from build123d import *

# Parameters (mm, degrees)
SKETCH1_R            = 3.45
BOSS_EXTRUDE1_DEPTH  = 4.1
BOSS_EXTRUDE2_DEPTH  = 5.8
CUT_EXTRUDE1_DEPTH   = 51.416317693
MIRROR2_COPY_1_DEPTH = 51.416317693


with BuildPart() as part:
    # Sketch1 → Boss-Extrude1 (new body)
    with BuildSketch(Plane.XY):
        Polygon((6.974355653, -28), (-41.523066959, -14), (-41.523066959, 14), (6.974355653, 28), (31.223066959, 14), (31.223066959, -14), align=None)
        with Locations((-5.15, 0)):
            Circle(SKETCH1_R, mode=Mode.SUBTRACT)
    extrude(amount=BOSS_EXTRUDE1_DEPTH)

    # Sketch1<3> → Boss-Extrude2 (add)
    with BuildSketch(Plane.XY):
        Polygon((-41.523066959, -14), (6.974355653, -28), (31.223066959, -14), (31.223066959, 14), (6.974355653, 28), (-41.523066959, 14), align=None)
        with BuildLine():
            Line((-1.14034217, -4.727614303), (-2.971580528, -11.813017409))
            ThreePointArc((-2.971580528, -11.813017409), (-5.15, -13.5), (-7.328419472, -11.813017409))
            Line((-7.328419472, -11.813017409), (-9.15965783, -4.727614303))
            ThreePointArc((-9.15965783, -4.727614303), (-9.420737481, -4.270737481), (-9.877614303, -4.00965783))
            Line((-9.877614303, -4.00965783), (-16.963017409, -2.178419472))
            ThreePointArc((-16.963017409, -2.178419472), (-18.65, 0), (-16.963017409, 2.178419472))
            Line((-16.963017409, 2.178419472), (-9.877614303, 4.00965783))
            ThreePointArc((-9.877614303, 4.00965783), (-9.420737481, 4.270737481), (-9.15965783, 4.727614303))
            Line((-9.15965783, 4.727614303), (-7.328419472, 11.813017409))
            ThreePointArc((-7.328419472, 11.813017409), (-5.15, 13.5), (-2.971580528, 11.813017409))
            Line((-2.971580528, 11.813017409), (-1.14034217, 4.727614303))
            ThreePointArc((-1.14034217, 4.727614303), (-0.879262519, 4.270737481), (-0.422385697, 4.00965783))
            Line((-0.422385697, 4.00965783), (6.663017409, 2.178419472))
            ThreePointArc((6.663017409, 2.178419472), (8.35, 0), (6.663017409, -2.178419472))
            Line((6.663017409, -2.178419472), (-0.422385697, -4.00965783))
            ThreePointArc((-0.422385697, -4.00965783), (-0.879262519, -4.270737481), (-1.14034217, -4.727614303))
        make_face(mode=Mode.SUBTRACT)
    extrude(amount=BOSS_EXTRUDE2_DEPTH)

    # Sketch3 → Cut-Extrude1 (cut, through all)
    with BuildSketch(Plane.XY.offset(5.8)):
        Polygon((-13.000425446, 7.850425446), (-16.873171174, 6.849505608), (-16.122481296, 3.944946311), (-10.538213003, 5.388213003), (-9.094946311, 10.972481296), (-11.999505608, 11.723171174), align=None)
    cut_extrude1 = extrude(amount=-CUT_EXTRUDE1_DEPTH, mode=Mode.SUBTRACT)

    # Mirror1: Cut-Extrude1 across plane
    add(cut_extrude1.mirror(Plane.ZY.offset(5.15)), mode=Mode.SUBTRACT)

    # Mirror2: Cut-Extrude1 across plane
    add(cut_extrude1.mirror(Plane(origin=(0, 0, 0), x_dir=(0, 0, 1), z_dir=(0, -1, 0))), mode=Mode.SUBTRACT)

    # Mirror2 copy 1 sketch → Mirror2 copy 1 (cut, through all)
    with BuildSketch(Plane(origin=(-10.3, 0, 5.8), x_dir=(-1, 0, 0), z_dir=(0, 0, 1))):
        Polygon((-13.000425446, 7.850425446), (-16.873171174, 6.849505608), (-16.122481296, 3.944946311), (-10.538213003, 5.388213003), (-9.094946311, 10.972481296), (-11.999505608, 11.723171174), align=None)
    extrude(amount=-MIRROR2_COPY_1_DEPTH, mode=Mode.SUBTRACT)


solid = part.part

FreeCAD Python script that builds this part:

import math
import FreeCAD as App
import Part
import Sketcher
from FreeCAD import Vector
Q = App.Units.Quantity

doc = App.newDocument("Part")
body = doc.addObject("PartDesign::Body", "Body")

sketch1 = doc.addObject("Sketcher::SketchObject", "Sketch")
body.addObject(sketch1)
sketch1.AttachmentSupport = (doc.XY_Plane, [""])
sketch1.MapMode = "FlatFace"
sketch1.addGeometry(Part.LineSegment(Vector(-41.5, -14, 0), Vector(7, -28, 0)), False)
sketch1.addGeometry(Part.LineSegment(Vector(7, -28, 0), Vector(31.2, -14, 0)), False)
sketch1.addGeometry(Part.LineSegment(Vector(31.2, -14, 0), Vector(31.2, 14, 0)), False)
sketch1.addGeometry(Part.LineSegment(Vector(31.2, 14, 0), Vector(7, 28, 0)), False)
sketch1.addGeometry(Part.LineSegment(Vector(7, 28, 0), Vector(-41.5, 14, 0)), False)
sketch1.addGeometry(Part.LineSegment(Vector(-41.5, 14, 0), Vector(-41.5, -14, 0)), False)
sketch1.addGeometry(Part.Circle(Vector(-5.2, 0, 0), Vector(0, 0, 1), 3.5), False)
sketch1.addConstraint(Sketcher.Constraint("Coincident", 0, 2, 1, 1))
sketch1.addConstraint(Sketcher.Constraint("Coincident", 1, 2, 2, 1))
sketch1.addConstraint(Sketcher.Constraint("Coincident", 2, 2, 3, 1))
sketch1.addConstraint(Sketcher.Constraint("Coincident", 3, 2, 4, 1))
sketch1.addConstraint(Sketcher.Constraint("Coincident", 4, 2, 5, 1))
sketch1.addConstraint(Sketcher.Constraint("Coincident", 5, 2, 0, 1))
sketch1.addConstraint(Sketcher.Constraint("Vertical", 2))
sketch1.addConstraint(Sketcher.Constraint("Vertical", 5))
sketch1.addConstraint(Sketcher.Constraint("Symmetric", 0, 2, 3, 2, -1))
sketch1.addConstraint(Sketcher.Constraint("PointOnObject", 6, 3, -1))
sketch1.addConstraint(Sketcher.Constraint("Horizontal", 2, 2, 4, 2))
sketch1.addConstraint(Sketcher.Constraint("Horizontal", 1, 2, 5, 2))
sketch1.addConstraint(Sketcher.Constraint("Equal", 1, 3))
sketch1.addConstraint(Sketcher.Constraint("Diameter", 6, Q("6.9 mm")))
sketch1.addConstraint(Sketcher.Constraint("DistanceY", 2, 1, 2, 2, Q("28 mm")))
sketch1.addConstraint(Sketcher.Constraint("Angle", 1, Q("30 deg")))
sketch1.addConstraint(Sketcher.Constraint("Distance", 1, Q("28 mm")))
sketch1.addConstraint(Sketcher.Constraint("DistanceX", 6, 3, -1, 1, Q("5.15 mm")))
sketch1.addConstraint(Sketcher.Constraint("Distance", 0, Q("50.477718 mm")))
sketch1.addConstraint(Sketcher.Constraint("DistanceX", -1, 1, 0, 2, Q("6.974356 mm")))
pad1 = doc.addObject("PartDesign::Pad", "Pad")
body.addObject(pad1)
pad1.Profile = sketch1
pad1.Length = 4.1

sketch2 = doc.addObject("Sketcher::SketchObject", "Sketch001")
body.addObject(sketch2)
sketch2.AttachmentSupport = (doc.XY_Plane, [""])
sketch2.MapMode = "FlatFace"
sketch2.addGeometry(Part.LineSegment(Vector(-41.5, -14, 0), Vector(7, -28, 0)), False)
sketch2.addGeometry(Part.LineSegment(Vector(7, -28, 0), Vector(31.2, -14, 0)), False)
sketch2.addGeometry(Part.LineSegment(Vector(31.2, -14, 0), Vector(31.2, 14, 0)), False)
sketch2.addGeometry(Part.LineSegment(Vector(31.2, 14, 0), Vector(7, 28, 0)), False)
sketch2.addGeometry(Part.LineSegment(Vector(7, 28, 0), Vector(-41.5, 14, 0)), False)
sketch2.addGeometry(Part.LineSegment(Vector(-41.5, 14, 0), Vector(-41.5, -14, 0)), False)
sketch2.addGeometry(Part.ArcOfCircle(Part.Circle(Vector(-0.2, -5, 0), Vector(0, 0, 1), 1), math.radians(104), math.radians(166)), False)
sketch2.addGeometry(Part.LineSegment(Vector(-1.1, -4.7, 0), Vector(-3, -11.8, 0)), False)
sketch2.addGeometry(Part.ArcOfCircle(Part.Circle(Vector(-5.2, -11.2, 0), Vector(0, 0, 1), 2.2), math.radians(-166), math.radians(-14)), False)
sketch2.addGeometry(Part.LineSegment(Vector(-7.3, -11.8, 0), Vector(-9.2, -4.7, 0)), False)
sketch2.addGeometry(Part.ArcOfCircle(Part.Circle(Vector(-10.1, -5, 0), Vector(0, 0, 1), 1), math.radians(14), math.radians(76)), False)
sketch2.addGeometry(Part.LineSegment(Vector(-9.9, -4, 0), Vector(-17, -2.2, 0)), False)
sketch2.addGeometry(Part.ArcOfCircle(Part.Circle(Vector(-16.4, 0, 0), Vector(0, 0, 1), 2.2), math.radians(104), math.radians(256)), False)
sketch2.addGeometry(Part.LineSegment(Vector(-17, 2.2, 0), Vector(-9.9, 4, 0)), False)
sketch2.addGeometry(Part.ArcOfCircle(Part.Circle(Vector(-10.1, 5, 0), Vector(0, 0, 1), 1), math.radians(-76), math.radians(-14)), False)
sketch2.addGeometry(Part.LineSegment(Vector(-9.2, 4.7, 0), Vector(-7.3, 11.8, 0)), False)
sketch2.addGeometry(Part.ArcOfCircle(Part.Circle(Vector(-5.2, 11.2, 0), Vector(0, 0, 1), 2.2), math.radians(14), math.radians(166)), False)
sketch2.addGeometry(Part.LineSegment(Vector(-3, 11.8, 0), Vector(-1.1, 4.7, 0)), False)
sketch2.addGeometry(Part.ArcOfCircle(Part.Circle(Vector(-0.2, 5, 0), Vector(0, 0, 1), 1), math.radians(-166), math.radians(-104)), False)
sketch2.addGeometry(Part.LineSegment(Vector(-0.4, 4, 0), Vector(6.7, 2.2, 0)), False)
sketch2.addGeometry(Part.ArcOfCircle(Part.Circle(Vector(6.1, 0, 0), Vector(0, 0, 1), 2.2), math.radians(-76), math.radians(76)), False)
sketch2.addGeometry(Part.LineSegment(Vector(6.7, -2.2, 0), Vector(-0.4, -4, 0)), False)
sketch2.addConstraint(Sketcher.Constraint("Coincident", 0, 2, 1, 1))
sketch2.addConstraint(Sketcher.Constraint("Coincident", 1, 2, 2, 1))
sketch2.addConstraint(Sketcher.Constraint("Coincident", 2, 2, 3, 1))
sketch2.addConstraint(Sketcher.Constraint("Coincident", 3, 2, 4, 1))
sketch2.addConstraint(Sketcher.Constraint("Coincident", 4, 2, 5, 1))
sketch2.addConstraint(Sketcher.Constraint("Coincident", 5, 2, 0, 1))
sketch2.addConstraint(Sketcher.Constraint("Tangent", 6, 2, 7, 1))
sketch2.addConstraint(Sketcher.Constraint("Tangent", 7, 2, 8, 2))
sketch2.addConstraint(Sketcher.Constraint("Tangent", 8, 1, 9, 1))
sketch2.addConstraint(Sketcher.Constraint("Tangent", 9, 2, 10, 1))
sketch2.addConstraint(Sketcher.Constraint("Tangent", 10, 2, 11, 1))
sketch2.addConstraint(Sketcher.Constraint("Tangent", 11, 2, 12, 2))
sketch2.addConstraint(Sketcher.Constraint("Tangent", 12, 1, 13, 1))
sketch2.addConstraint(Sketcher.Constraint("Tangent", 13, 2, 14, 1))
sketch2.addConstraint(Sketcher.Constraint("Tangent", 14, 2, 15, 1))
sketch2.addConstraint(Sketcher.Constraint("Tangent", 15, 2, 16, 2))
sketch2.addConstraint(Sketcher.Constraint("Tangent", 16, 1, 17, 1))
sketch2.addConstraint(Sketcher.Constraint("Tangent", 17, 2, 18, 1))
sketch2.addConstraint(Sketcher.Constraint("Tangent", 18, 2, 19, 1))
sketch2.addConstraint(Sketcher.Constraint("Tangent", 19, 2, 20, 2))
sketch2.addConstraint(Sketcher.Constraint("Tangent", 20, 1, 21, 1))
sketch2.addConstraint(Sketcher.Constraint("Tangent", 21, 2, 6, 1))
sketch2.addConstraint(Sketcher.Constraint("Vertical", 2))
sketch2.addConstraint(Sketcher.Constraint("Vertical", 5))
sketch2.addConstraint(Sketcher.Constraint("Equal", 6, 10))
sketch2.addConstraint(Sketcher.Constraint("Equal", 8, 12))
sketch2.addConstraint(Sketcher.Constraint("Equal", 10, 14))
sketch2.addConstraint(Sketcher.Constraint("Equal", 12, 16))
sketch2.addConstraint(Sketcher.Constraint("Equal", 14, 18))
sketch2.addConstraint(Sketcher.Constraint("Equal", 16, 20))
sketch2.addConstraint(Sketcher.Constraint("Symmetric", 10, 3, 14, 3, -1))
sketch2.addConstraint(Sketcher.Constraint("Symmetric", 8, 3, 16, 3, -1))
sketch2.addConstraint(Sketcher.Constraint("Symmetric", 6, 3, 18, 3, -1))
sketch2.addConstraint(Sketcher.Constraint("Symmetric", 0, 2, 3, 2, -1))
sketch2.addConstraint(Sketcher.Constraint("PointOnObject", 12, 3, -1))
sketch2.addConstraint(Sketcher.Constraint("PointOnObject", 20, 3, -1))
sketch2.addConstraint(Sketcher.Constraint("Perpendicular", 7, 11))
sketch2.addConstraint(Sketcher.Constraint("Perpendicular", 9, 13))
sketch2.addConstraint(Sketcher.Constraint("Perpendicular", 15, 19))
sketch2.addConstraint(Sketcher.Constraint("Horizontal", 6, 3, 10, 3))
sketch2.addConstraint(Sketcher.Constraint("Horizontal", 2, 2, 4, 2))
sketch2.addConstraint(Sketcher.Constraint("Horizontal", 1, 2, 5, 2))
sketch2.addConstraint(Sketcher.Constraint("Equal", 1, 3))
sketch2.addConstraint(Sketcher.Constraint("Equal", 9, 11))
sketch2.addConstraint(Sketcher.Constraint("Radius", 6, Q("1 mm")))
sketch2.addConstraint(Sketcher.Constraint("DistanceY", 2, 1, 2, 2, Q("28 mm")))
sketch2.addConstraint(Sketcher.Constraint("Angle", 1, Q("30 deg")))
sketch2.addConstraint(Sketcher.Constraint("Radius", 8, Q("2.25 mm")))
sketch2.addConstraint(Sketcher.Constraint("Distance", 1, Q("28 mm")))
sketch2.addConstraint(Sketcher.Constraint("DistanceX", 12, 3, -1, 1, Q("16.4 mm")))
sketch2.addConstraint(Sketcher.Constraint("DistanceX", -1, 1, 20, 3, Q("6.1 mm")))
sketch2.addConstraint(Sketcher.Constraint("DistanceX", 10, 3, 0, 2, Q("17.1022 mm")))
sketch2.addConstraint(Sketcher.Constraint("Distance", 7, Q("7.318222 mm")))
sketch2.addConstraint(Sketcher.Constraint("DistanceX", 4, 2, 18, 3, Q("41.350911 mm")))
pad2 = doc.addObject("PartDesign::Pad", "Pad001")
body.addObject(pad2)
pad2.Profile = sketch2
pad2.Length = 5.8

sketch3 = doc.addObject("Sketcher::SketchObject", "Sketch002")
body.addObject(sketch3)
sketch3.AttachmentSupport = (doc.XY_Plane, [""])
sketch3.MapMode = "FlatFace"
sketch3.AttachmentOffset = App.Placement(Vector(0, 0, 5.8), App.Rotation())
sketch3.addGeometry(Part.LineSegment(Vector(-13, 7.9, 0), Vector(-16.9, 6.8, 0)), False)
sketch3.addGeometry(Part.LineSegment(Vector(-16.9, 6.8, 0), Vector(-16.1, 3.9, 0)), False)
sketch3.addGeometry(Part.LineSegment(Vector(-16.1, 3.9, 0), Vector(-10.5, 5.4, 0)), False)
sketch3.addGeometry(Part.LineSegment(Vector(-10.5, 5.4, 0), Vector(-9.1, 11, 0)), False)
sketch3.addGeometry(Part.LineSegment(Vector(-9.1, 11, 0), Vector(-12, 11.7, 0)), False)
sketch3.addGeometry(Part.LineSegment(Vector(-12, 11.7, 0), Vector(-13, 7.9, 0)), False)
sketch3.addConstraint(Sketcher.Constraint("Coincident", 0, 2, 1, 1))
sketch3.addConstraint(Sketcher.Constraint("Coincident", 1, 2, 2, 1))
sketch3.addConstraint(Sketcher.Constraint("Coincident", 2, 2, 3, 1))
sketch3.addConstraint(Sketcher.Constraint("Coincident", 3, 2, 4, 1))
sketch3.addConstraint(Sketcher.Constraint("Coincident", 4, 2, 5, 1))
sketch3.addConstraint(Sketcher.Constraint("Coincident", 5, 2, 0, 1))
sketch3.addConstraint(Sketcher.Constraint("Perpendicular", 0, 1))
sketch3.addConstraint(Sketcher.Constraint("Perpendicular", 1, 2))
sketch3.addConstraint(Sketcher.Constraint("Perpendicular", 3, 4))
sketch3.addConstraint(Sketcher.Constraint("Perpendicular", 4, 5))
sketch3.addConstraint(Sketcher.Constraint("Equal", 2, 3))
sketch3.addConstraint(Sketcher.Constraint("Equal", 1, 4))
sketch3.addConstraint(Sketcher.Constraint("Distance", 0, Q("4 mm")))
sketch3.addConstraint(Sketcher.Constraint("Distance", 1, Q("3 mm")))
sketch3.addConstraint(Sketcher.Constraint("Distance", 2, Q("5.767761 mm")))
sketch3.addConstraint(Sketcher.Constraint("DistanceX", 0, 2, -1, 1, Q("16.873171 mm")))
sketch3.addConstraint(Sketcher.Constraint("DistanceX", 1, 2, -1, 1, Q("16.122481 mm")))
sketch3.addConstraint(Sketcher.Constraint("DistanceY", -1, 1, 3, 2, Q("10.972481 mm")))
pocket1 = doc.addObject("PartDesign::Pocket", "Pocket")
body.addObject(pocket1)
pocket1.Profile = sketch3
pocket1.Type = "ThroughAll"
doc.recompute()

datumplane = doc.addObject("PartDesign::Plane", "DatumPlane")
body.addObject(datumplane)
datumplane.AttachmentSupport = (doc.YZ_Plane, [""])
datumplane.MapMode = "FlatFace"
datumplane.AttachmentOffset = App.Placement(Vector(0, 0, -5.15), App.Rotation())
mirrored = doc.addObject("PartDesign::Mirrored", "Mirrored")
body.addObject(mirrored)
mirrored.Originals = [pocket1]
mirrored.MirrorPlane = (datumplane, [""])
body.Tip = mirrored
doc.recompute()

mirrored2 = doc.addObject("PartDesign::Mirrored", "Mirrored001")
body.addObject(mirrored2)
mirrored2.Originals = [pocket1]
mirrored2.MirrorPlane = (doc.XZ_Plane, [""])
body.Tip = mirrored2

sketch4 = doc.addObject("Sketcher::SketchObject", "Sketch003")
body.addObject(sketch4)
sketch4.AttachmentSupport = (doc.XY_Plane, [""])
sketch4.MapMode = "FlatFace"
sketch4.AttachmentOffset = App.Placement(Vector(0, 0, 5.8), App.Rotation())
sketch4.addGeometry(Part.LineSegment(Vector(2.7, -7.9, 0), Vector(6.6, -6.8, 0)), False)
sketch4.addGeometry(Part.LineSegment(Vector(6.6, -6.8, 0), Vector(5.8, -3.9, 0)), False)
sketch4.addGeometry(Part.LineSegment(Vector(5.8, -3.9, 0), Vector(0.2, -5.4, 0)), False)
sketch4.addGeometry(Part.LineSegment(Vector(0.2, -5.4, 0), Vector(-1.2, -11, 0)), False)
sketch4.addGeometry(Part.LineSegment(Vector(-1.2, -11, 0), Vector(1.7, -11.7, 0)), False)
sketch4.addGeometry(Part.LineSegment(Vector(1.7, -11.7, 0), Vector(2.7, -7.9, 0)), False)
sketch4.addConstraint(Sketcher.Constraint("Coincident", 0, 2, 1, 1))
sketch4.addConstraint(Sketcher.Constraint("Coincident", 1, 2, 2, 1))
sketch4.addConstraint(Sketcher.Constraint("Coincident", 2, 2, 3, 1))
sketch4.addConstraint(Sketcher.Constraint("Coincident", 3, 2, 4, 1))
sketch4.addConstraint(Sketcher.Constraint("Coincident", 4, 2, 5, 1))
sketch4.addConstraint(Sketcher.Constraint("Coincident", 5, 2, 0, 1))
sketch4.addConstraint(Sketcher.Constraint("Perpendicular", 0, 1))
sketch4.addConstraint(Sketcher.Constraint("Perpendicular", 1, 2))
sketch4.addConstraint(Sketcher.Constraint("Perpendicular", 3, 4))
sketch4.addConstraint(Sketcher.Constraint("Perpendicular", 4, 5))
sketch4.addConstraint(Sketcher.Constraint("Equal", 2, 3))
sketch4.addConstraint(Sketcher.Constraint("Equal", 1, 4))
sketch4.addConstraint(Sketcher.Constraint("Distance", 0, Q("4 mm")))
sketch4.addConstraint(Sketcher.Constraint("Distance", 1, Q("3 mm")))
sketch4.addConstraint(Sketcher.Constraint("Distance", 2, Q("5.767761 mm")))
sketch4.addConstraint(Sketcher.Constraint("DistanceX", -1, 1, 0, 2, Q("6.573171 mm")))
sketch4.addConstraint(Sketcher.Constraint("DistanceX", -1, 1, 1, 2, Q("5.822481 mm")))
sketch4.addConstraint(Sketcher.Constraint("DistanceY", 3, 2, -1, 1, Q("10.972481 mm")))
pocket2 = doc.addObject("PartDesign::Pocket", "Pocket001")
body.addObject(pocket2)
pocket2.Profile = sketch4
pocket2.Type = "ThroughAll"

doc.recompute()
